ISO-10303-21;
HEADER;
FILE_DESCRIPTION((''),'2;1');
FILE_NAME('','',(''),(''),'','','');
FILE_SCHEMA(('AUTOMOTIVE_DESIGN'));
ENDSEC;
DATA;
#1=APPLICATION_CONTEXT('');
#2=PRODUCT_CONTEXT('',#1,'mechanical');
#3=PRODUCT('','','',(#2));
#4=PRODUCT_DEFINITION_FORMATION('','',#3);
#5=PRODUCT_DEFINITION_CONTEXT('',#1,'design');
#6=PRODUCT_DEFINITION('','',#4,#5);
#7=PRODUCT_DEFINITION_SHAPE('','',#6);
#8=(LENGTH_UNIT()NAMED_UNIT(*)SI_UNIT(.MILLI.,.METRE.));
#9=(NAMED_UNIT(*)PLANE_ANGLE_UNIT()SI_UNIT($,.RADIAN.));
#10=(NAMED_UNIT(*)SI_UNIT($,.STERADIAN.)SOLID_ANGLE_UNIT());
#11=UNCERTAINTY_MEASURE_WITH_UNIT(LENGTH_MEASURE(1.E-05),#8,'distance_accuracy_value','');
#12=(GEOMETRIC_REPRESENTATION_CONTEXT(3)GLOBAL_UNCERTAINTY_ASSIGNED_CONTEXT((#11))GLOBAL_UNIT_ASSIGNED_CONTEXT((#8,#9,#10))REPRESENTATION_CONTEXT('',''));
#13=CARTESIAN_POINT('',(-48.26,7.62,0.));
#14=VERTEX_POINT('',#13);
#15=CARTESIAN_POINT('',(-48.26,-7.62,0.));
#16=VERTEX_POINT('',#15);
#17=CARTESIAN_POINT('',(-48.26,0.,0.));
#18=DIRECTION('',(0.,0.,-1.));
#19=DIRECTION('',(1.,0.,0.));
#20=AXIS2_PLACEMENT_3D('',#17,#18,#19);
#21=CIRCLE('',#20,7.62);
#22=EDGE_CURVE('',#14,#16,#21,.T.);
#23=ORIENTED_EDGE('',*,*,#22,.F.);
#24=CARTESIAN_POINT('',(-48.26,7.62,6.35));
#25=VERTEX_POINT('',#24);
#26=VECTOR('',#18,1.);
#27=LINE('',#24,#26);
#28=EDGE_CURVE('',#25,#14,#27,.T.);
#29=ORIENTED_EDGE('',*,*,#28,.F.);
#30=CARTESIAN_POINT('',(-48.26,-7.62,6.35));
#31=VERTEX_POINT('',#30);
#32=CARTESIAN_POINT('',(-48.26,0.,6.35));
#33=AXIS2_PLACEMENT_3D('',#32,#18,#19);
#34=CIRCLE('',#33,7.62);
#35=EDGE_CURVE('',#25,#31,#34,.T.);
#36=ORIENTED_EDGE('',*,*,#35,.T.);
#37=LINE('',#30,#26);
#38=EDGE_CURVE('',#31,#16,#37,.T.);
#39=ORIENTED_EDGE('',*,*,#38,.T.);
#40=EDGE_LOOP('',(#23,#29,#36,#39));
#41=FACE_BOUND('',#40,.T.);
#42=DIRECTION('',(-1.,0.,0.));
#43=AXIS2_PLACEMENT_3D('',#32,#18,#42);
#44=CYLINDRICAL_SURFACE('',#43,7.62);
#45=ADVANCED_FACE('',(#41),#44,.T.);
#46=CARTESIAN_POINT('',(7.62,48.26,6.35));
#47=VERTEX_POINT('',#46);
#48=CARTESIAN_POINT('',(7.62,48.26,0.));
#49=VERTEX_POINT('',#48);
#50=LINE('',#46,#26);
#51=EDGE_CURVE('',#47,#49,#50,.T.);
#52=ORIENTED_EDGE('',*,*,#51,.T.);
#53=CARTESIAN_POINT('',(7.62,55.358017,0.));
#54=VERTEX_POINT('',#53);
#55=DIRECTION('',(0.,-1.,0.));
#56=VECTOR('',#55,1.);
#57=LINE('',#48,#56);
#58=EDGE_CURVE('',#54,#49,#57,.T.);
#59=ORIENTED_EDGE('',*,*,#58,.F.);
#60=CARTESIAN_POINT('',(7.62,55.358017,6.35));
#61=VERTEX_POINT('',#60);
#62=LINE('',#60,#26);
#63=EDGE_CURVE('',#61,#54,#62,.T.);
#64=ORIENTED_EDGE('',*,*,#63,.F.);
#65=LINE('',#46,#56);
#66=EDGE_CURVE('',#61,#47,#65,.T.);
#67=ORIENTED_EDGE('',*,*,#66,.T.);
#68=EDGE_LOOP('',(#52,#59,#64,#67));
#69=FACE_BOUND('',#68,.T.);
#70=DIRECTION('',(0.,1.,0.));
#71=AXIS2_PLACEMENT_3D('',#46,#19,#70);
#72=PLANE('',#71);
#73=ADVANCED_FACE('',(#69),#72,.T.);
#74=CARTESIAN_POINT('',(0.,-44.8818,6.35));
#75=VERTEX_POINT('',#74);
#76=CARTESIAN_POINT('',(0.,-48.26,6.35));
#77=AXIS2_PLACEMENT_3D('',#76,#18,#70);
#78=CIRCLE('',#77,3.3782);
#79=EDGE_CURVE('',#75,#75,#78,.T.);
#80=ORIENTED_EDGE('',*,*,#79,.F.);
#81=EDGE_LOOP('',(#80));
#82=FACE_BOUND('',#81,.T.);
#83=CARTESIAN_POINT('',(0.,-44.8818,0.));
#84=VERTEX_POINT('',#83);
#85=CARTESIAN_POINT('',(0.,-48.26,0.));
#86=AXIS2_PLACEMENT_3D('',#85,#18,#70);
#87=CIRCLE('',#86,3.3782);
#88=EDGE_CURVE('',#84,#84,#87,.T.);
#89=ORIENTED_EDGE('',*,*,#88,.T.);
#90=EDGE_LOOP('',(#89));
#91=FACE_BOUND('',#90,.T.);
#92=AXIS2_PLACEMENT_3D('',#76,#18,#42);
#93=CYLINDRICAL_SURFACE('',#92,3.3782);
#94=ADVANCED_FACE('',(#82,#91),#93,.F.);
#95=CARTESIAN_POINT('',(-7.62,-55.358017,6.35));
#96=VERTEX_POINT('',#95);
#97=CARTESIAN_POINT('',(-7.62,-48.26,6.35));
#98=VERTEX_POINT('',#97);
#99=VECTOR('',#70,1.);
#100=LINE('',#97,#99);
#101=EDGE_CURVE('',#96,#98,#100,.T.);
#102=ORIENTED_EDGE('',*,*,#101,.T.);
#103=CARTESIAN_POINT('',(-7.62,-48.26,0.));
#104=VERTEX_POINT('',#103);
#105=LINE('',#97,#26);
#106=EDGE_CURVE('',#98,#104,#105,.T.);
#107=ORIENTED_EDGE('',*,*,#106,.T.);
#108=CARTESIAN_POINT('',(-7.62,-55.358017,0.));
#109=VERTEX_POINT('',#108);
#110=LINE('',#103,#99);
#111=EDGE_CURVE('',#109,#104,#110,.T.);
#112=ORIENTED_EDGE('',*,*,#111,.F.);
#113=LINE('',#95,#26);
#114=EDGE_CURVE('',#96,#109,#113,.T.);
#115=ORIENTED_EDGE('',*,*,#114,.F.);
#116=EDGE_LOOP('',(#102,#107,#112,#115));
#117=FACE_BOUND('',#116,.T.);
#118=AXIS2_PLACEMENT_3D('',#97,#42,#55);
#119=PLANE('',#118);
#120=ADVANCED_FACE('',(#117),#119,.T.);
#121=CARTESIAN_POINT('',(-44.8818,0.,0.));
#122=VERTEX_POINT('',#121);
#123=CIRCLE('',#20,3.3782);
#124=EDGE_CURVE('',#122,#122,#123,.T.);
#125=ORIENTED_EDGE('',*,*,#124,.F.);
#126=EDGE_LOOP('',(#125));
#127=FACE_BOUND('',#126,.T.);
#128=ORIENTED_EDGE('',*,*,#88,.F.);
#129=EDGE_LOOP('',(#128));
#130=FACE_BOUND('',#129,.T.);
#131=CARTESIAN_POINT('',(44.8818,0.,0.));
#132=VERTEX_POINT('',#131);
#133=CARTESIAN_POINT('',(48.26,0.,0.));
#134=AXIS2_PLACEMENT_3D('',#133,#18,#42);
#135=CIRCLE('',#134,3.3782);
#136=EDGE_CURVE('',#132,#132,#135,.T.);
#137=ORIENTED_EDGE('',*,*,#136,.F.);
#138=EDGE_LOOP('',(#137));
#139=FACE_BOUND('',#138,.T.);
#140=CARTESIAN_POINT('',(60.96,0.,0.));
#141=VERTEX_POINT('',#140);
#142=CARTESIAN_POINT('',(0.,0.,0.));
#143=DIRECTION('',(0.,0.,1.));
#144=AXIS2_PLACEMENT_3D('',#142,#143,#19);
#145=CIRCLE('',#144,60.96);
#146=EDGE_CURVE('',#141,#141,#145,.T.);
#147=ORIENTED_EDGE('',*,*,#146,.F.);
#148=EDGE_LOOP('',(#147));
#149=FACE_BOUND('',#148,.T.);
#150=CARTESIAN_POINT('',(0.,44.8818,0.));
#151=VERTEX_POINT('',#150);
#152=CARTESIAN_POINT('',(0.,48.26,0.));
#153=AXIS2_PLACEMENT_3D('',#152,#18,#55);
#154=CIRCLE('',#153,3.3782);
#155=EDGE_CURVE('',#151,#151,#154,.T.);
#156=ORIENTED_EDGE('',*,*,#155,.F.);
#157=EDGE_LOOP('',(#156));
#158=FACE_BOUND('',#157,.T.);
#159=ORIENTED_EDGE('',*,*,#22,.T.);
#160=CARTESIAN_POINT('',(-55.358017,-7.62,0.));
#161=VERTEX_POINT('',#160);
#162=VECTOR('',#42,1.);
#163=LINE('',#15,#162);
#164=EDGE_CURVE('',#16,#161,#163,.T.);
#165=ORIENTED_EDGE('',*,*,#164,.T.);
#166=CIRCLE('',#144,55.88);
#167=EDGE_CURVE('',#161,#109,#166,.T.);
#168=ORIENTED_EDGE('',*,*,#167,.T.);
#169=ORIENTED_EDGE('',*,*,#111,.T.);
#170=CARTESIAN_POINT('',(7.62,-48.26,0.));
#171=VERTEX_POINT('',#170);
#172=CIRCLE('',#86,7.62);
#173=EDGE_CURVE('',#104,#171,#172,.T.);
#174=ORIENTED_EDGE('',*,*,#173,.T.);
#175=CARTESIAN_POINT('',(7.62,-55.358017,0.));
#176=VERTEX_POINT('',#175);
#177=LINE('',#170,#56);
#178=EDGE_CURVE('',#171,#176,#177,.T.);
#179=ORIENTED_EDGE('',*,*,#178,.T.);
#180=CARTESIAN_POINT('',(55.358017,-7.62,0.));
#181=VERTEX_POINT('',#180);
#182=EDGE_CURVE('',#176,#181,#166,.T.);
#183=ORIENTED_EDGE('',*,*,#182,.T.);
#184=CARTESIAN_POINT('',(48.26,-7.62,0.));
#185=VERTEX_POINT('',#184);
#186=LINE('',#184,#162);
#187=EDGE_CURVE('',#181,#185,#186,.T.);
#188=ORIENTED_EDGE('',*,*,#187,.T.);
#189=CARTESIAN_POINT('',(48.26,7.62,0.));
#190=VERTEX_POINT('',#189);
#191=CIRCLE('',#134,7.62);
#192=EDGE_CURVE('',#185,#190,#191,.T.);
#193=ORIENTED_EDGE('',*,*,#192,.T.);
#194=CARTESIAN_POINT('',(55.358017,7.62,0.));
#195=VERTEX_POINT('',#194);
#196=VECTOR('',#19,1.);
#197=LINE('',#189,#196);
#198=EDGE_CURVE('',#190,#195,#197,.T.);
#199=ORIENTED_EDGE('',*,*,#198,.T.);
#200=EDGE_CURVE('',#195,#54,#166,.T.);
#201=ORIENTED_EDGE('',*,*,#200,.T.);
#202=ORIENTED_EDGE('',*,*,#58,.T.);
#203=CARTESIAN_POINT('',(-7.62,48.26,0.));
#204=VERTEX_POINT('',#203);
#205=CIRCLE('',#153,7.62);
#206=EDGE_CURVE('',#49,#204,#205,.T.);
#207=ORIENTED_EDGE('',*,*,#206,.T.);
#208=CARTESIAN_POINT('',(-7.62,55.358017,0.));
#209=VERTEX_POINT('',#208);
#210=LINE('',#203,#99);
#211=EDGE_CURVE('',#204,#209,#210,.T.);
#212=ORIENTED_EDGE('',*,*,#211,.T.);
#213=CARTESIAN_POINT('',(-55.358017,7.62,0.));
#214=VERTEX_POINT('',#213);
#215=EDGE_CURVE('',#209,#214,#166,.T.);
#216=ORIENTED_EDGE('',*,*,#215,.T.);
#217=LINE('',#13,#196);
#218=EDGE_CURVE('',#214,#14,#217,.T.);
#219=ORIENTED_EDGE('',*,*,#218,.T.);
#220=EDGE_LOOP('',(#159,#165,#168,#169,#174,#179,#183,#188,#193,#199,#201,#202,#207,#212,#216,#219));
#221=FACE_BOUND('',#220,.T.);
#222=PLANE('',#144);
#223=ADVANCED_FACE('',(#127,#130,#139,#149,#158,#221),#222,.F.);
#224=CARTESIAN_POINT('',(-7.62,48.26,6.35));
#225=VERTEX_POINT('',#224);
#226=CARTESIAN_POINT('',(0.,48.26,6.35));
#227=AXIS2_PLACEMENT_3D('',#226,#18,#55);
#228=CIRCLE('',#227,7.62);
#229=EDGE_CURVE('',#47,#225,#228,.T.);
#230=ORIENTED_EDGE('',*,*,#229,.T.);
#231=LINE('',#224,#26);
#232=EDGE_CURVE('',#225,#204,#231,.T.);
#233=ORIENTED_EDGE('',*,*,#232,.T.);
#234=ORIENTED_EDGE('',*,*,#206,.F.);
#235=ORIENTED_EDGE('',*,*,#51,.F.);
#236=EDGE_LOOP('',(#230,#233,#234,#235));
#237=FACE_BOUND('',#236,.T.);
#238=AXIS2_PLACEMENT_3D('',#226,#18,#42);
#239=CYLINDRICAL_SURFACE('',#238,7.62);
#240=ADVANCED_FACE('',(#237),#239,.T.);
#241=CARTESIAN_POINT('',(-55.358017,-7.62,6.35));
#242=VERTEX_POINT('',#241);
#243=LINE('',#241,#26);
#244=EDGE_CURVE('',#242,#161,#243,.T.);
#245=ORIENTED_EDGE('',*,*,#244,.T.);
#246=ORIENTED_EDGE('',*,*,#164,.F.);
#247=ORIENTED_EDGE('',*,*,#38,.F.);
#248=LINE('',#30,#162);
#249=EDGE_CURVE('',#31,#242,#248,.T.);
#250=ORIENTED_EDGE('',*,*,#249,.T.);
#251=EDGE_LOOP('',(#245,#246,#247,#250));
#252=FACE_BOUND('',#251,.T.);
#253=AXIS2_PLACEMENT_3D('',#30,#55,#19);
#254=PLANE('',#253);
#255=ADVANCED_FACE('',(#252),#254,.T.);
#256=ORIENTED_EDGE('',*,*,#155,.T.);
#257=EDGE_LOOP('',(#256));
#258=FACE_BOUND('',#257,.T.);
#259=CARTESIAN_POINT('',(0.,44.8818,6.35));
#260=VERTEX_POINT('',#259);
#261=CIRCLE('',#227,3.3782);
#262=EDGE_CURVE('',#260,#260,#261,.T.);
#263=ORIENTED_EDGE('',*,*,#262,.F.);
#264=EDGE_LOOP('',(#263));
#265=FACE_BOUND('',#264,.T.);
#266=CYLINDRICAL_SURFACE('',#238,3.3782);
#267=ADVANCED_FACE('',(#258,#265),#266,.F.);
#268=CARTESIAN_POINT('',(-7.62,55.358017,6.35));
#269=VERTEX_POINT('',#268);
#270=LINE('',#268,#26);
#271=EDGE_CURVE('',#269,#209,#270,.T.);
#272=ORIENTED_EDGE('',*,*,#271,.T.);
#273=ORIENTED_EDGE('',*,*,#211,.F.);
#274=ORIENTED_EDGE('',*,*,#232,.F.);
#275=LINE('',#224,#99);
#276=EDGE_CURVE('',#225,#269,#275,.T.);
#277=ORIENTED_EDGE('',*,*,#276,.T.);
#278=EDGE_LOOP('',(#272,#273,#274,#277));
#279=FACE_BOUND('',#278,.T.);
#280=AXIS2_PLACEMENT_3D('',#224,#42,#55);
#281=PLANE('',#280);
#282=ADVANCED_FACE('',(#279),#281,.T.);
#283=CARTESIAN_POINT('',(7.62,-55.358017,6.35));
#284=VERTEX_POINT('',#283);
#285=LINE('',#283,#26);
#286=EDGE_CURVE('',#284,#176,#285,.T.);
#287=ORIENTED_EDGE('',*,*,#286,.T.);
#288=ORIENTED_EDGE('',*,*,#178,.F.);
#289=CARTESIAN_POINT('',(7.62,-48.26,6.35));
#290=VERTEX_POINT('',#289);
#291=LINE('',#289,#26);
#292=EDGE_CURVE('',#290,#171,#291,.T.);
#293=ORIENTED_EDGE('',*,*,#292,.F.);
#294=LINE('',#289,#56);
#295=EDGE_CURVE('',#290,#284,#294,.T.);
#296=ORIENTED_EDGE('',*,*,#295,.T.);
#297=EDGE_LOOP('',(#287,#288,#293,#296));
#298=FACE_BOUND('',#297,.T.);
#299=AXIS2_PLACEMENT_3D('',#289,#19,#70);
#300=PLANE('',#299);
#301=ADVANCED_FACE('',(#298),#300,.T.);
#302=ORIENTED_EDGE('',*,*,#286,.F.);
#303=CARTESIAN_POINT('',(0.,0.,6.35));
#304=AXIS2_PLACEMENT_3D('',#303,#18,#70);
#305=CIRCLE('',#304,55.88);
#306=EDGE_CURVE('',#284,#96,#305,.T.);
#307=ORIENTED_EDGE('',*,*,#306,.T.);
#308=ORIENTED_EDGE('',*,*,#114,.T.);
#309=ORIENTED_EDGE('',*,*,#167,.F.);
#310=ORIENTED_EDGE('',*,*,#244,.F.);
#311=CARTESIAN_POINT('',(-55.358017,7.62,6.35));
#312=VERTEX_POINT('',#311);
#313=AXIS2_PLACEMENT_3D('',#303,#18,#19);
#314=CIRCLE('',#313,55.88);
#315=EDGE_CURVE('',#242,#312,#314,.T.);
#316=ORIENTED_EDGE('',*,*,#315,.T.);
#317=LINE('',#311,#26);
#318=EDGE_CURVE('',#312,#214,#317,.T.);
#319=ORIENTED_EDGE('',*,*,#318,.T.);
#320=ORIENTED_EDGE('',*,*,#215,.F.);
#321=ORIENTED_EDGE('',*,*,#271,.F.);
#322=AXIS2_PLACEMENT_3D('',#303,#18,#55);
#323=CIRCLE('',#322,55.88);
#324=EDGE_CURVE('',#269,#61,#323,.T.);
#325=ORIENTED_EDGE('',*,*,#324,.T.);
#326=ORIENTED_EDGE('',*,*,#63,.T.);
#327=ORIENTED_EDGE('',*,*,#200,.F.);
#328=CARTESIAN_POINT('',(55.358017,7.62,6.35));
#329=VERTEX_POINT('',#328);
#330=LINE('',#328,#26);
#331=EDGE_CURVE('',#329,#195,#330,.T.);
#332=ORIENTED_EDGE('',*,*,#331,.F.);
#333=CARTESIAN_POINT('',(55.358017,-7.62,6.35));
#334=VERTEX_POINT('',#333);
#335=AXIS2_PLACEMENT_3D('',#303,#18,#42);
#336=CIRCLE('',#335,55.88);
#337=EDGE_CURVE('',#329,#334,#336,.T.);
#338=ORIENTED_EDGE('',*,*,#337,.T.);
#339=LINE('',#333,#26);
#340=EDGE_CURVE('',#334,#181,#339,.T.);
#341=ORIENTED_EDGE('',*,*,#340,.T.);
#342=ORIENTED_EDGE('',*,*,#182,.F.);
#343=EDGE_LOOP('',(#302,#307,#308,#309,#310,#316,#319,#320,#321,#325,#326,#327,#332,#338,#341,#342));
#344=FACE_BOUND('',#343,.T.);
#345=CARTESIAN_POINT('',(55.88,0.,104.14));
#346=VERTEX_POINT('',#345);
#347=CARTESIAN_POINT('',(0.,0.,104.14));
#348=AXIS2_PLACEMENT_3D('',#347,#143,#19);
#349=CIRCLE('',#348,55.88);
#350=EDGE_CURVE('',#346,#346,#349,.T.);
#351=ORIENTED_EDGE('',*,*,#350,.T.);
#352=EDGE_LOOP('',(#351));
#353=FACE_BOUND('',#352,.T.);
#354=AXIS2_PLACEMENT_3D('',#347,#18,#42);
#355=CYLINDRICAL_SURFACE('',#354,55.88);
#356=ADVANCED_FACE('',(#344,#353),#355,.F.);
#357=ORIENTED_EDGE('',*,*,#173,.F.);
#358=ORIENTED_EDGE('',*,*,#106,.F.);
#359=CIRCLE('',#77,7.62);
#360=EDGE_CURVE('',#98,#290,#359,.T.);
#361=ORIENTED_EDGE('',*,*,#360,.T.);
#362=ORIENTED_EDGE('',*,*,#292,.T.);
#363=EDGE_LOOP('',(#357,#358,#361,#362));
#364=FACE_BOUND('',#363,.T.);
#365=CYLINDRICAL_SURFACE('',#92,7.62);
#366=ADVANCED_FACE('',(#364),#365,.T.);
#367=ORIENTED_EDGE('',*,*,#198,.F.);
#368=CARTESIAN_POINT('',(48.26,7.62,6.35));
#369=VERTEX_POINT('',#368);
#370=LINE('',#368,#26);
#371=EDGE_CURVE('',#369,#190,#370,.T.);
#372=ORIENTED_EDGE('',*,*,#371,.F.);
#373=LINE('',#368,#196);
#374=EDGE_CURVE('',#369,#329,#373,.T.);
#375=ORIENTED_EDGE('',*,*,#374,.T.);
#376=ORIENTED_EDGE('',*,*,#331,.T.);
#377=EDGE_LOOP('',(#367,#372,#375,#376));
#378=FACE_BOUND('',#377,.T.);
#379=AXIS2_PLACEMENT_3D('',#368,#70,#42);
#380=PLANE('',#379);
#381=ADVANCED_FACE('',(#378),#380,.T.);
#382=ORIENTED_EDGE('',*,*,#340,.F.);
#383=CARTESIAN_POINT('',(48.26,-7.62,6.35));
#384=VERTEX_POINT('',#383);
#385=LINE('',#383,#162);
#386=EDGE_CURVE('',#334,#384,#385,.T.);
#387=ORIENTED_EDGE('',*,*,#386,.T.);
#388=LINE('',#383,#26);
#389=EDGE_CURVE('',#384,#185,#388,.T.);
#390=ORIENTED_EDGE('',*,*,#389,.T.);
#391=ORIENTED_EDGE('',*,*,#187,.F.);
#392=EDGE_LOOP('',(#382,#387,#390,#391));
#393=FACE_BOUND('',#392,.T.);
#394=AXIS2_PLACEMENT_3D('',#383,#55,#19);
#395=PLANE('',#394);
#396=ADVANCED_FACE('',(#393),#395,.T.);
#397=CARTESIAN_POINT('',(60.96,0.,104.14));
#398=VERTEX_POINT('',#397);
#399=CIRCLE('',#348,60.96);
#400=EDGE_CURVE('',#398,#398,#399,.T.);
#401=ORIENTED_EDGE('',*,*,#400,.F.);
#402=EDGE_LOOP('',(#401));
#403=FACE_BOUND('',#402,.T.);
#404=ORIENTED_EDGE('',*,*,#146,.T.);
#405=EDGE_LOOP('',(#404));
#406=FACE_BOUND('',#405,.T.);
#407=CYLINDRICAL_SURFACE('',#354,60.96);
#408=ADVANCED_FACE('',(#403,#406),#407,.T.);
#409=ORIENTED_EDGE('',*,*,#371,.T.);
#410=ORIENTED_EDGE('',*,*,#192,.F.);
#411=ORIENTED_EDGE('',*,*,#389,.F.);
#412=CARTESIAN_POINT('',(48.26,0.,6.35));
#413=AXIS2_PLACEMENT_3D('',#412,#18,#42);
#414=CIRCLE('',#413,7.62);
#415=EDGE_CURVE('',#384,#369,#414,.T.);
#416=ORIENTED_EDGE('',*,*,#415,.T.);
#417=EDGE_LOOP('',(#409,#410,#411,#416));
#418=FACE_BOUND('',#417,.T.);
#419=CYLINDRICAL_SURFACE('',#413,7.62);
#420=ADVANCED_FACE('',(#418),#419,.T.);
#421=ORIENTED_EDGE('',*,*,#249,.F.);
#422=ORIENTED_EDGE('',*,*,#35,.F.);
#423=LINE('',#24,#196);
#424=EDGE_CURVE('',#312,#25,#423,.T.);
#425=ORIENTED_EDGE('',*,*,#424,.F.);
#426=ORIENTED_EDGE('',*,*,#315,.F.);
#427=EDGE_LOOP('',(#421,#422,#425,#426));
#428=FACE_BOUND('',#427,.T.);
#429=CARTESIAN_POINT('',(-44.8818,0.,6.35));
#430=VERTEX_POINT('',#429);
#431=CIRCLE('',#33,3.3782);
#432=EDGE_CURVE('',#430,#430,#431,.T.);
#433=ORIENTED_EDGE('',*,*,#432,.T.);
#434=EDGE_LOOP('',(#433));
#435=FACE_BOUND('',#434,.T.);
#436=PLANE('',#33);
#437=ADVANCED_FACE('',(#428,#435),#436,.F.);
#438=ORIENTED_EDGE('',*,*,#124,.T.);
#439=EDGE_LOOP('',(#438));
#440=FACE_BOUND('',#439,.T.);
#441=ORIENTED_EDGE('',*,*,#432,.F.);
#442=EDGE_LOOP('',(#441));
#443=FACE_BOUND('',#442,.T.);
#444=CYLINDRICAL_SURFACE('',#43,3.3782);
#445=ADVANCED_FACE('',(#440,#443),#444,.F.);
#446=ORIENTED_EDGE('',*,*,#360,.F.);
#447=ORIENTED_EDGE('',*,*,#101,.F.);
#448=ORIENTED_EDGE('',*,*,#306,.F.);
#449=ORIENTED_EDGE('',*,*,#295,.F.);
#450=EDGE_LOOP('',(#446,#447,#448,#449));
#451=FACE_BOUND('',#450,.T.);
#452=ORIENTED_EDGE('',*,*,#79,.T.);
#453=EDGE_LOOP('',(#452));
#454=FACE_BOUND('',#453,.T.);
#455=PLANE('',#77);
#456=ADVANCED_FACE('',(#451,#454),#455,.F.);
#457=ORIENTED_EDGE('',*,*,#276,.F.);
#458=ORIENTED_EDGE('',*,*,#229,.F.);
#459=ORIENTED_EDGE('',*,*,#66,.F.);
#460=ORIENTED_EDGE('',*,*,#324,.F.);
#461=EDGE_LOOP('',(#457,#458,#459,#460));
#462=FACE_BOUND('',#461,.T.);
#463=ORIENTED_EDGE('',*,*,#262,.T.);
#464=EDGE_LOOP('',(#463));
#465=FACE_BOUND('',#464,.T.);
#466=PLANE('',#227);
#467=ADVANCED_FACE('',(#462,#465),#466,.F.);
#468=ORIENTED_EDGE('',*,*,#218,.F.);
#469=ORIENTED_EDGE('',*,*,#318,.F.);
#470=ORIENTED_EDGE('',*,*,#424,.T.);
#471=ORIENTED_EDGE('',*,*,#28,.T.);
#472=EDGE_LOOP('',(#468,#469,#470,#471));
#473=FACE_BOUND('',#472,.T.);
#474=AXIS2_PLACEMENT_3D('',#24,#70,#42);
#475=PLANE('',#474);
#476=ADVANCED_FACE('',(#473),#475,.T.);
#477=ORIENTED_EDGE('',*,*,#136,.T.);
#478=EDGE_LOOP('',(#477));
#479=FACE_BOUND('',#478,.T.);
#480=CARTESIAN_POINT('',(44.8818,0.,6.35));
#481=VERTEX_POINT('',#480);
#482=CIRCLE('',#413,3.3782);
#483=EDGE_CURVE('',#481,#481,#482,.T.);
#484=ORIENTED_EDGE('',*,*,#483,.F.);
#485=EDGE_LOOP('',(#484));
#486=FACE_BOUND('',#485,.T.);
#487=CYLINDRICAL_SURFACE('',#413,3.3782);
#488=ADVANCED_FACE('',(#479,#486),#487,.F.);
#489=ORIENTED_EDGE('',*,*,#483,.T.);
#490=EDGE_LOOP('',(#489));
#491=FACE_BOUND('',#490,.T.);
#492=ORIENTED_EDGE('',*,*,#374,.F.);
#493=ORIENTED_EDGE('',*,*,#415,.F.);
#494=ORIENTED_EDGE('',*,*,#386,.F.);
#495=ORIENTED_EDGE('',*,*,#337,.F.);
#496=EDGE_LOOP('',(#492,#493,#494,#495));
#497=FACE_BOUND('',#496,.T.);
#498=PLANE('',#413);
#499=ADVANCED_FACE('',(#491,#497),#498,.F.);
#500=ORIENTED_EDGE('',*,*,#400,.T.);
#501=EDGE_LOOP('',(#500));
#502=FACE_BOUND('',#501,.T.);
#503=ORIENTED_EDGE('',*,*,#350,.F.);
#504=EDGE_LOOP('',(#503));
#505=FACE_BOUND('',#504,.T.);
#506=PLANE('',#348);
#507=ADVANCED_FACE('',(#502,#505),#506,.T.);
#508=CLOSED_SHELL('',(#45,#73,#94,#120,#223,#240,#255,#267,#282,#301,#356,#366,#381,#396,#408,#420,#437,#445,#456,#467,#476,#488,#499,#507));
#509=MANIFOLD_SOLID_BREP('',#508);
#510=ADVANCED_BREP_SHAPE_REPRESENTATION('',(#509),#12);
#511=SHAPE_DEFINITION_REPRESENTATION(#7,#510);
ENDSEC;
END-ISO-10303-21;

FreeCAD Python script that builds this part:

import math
import FreeCAD as App
import Part
import Sketcher

V = App.Vector
Q = App.Units.Quantity

doc = App.newDocument("Part")
body = doc.addObject("PartDesign::Body", "Body")

sketch1 = body.newObject("Sketcher::SketchObject", "Sketch")
sketch1.AttachmentSupport = (doc.getObject("XY_Plane"), [""])
sketch1.MapMode = "FlatFace"
sketch1.addGeometry(Part.Circle(V(0, 0, 0), V(0, 0, 1), 60.96), False)
sketch1.addGeometry(Part.Circle(V(0, 0, 0), V(0, 0, 1), 55.88), False)
sketch1.addConstraint(Sketcher.Constraint("Coincident", 0, 3, -1, 1))
sketch1.addConstraint(Sketcher.Constraint("Coincident", 1, 3, -1, 1))
sketch1.addConstraint(Sketcher.Constraint("Diameter", 0, Q("4.8 in")))
sketch1.addConstraint(Sketcher.Constraint("Diameter", 1, Q("4.4 in")))
pad1 = body.newObject("PartDesign::Pad", "Pad")
pad1.Profile = sketch1
pad1.Length = Q("4.1 in")

sketch2 = body.newObject("Sketcher::SketchObject", "Sketch001")
sketch2.AttachmentSupport = (doc.getObject("XY_Plane"), [""])
sketch2.MapMode = "FlatFace"
sketch2.addGeometry(Part.LineSegment(V(48.26, 7.62, 0), V(55.358017, 7.62, 0)), False)
sketch2.addGeometry(Part.ArcOfCircle(Part.Circle(V(0, 0, 0), V(0, 0, 1), 55.88), math.radians(-7.83748), math.radians(7.83748)), False)
sketch2.addGeometry(Part.LineSegment(V(55.358017, -7.62, 0), V(48.26, -7.62, 0)), False)
sketch2.addGeometry(Part.ArcOfCircle(Part.Circle(V(48.26, 0, 0), V(0, 0, 1), 7.62), math.radians(90), math.radians(270)), False)
sketch2.addGeometry(Part.Circle(V(48.26, 0, 0), V(0, 0, 1), 3.3782), False)
sketch2.addConstraint(Sketcher.Constraint("Coincident", 0, 2, 1, 2))
sketch2.addConstraint(Sketcher.Constraint("Coincident", 1, 1, 2, 1))
sketch2.addConstraint(Sketcher.Constraint("Tangent", 2, 2, 3, 2))
sketch2.addConstraint(Sketcher.Constraint("Tangent", 3, 1, 0, 1))
sketch2.addConstraint(Sketcher.Constraint("Horizontal", 0))
sketch2.addConstraint(Sketcher.Constraint("Horizontal", 2))
sketch2.addConstraint(Sketcher.Constraint("Coincident", 1, 3, -1, 1))
sketch2.addConstraint(Sketcher.Constraint("Coincident", 4, 3, 3, 3))
sketch2.addConstraint(Sketcher.Constraint("PointOnObject", 3, 3, -1))
sketch2.addConstraint(Sketcher.Constraint("Radius", 1, Q("2.2 in")))
sketch2.addConstraint(Sketcher.Constraint("Radius", 3, Q("0.3 in")))
sketch2.addConstraint(Sketcher.Constraint("Diameter", 4, Q("0.266 in")))
sketch2.addConstraint(Sketcher.Constraint("DistanceX", -1, 1, 3, 3, Q("1.9 in")))
pad2 = body.newObject("PartDesign::Pad", "Pad001")
pad2.Profile = sketch2
pad2.Length = Q("0.25 in")
doc.recompute()

polarpattern = body.newObject("PartDesign::PolarPattern", "PolarPattern")
polarpattern.Originals = [pad2]
polarpattern.Axis = (doc.getObject("Z_Axis"), [""])
polarpattern.Angle = 360
polarpattern.Occurrences = 4
body.Tip = polarpattern

doc.recompute()
